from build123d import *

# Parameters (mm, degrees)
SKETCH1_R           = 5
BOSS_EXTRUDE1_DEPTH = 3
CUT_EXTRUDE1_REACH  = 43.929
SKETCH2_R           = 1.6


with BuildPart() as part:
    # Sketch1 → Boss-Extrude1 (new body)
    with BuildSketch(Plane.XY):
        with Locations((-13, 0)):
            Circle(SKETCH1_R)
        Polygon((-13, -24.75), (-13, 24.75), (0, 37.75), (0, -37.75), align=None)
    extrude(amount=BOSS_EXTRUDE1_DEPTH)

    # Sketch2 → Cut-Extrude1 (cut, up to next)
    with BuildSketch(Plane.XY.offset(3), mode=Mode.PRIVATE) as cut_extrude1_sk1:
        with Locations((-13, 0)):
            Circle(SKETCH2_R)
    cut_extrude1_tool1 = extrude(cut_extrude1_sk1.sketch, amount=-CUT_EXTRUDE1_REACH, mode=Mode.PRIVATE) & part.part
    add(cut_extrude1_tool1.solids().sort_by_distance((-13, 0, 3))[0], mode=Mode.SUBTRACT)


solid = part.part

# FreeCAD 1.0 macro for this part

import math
import FreeCAD as App
import Part
import Sketcher

V = App.Vector
Q = App.Units.Quantity

doc = App.newDocument("Part")
body = doc.addObject("PartDesign::Body", "Body")

# Sketch on XY plane
sketch1 = doc.addObject("Sketcher::SketchObject", "Sketch")
body.addObject(sketch1)
sketch1.AttachmentSupport = (doc.XY_Plane, [""])
sketch1.MapMode = "FlatFace"
sketch1.addGeometry(Part.LineSegment(V(-13, -25, 0), V(0, -38, 0)), False)
sketch1.addGeometry(Part.LineSegment(V(0, -38, 0), V(0, 38, 0)), False)
sketch1.addGeometry(Part.LineSegment(V(0, 38, 0), V(-13, 25, 0)), False)
sketch1.addGeometry(Part.LineSegment(V(-13, 25, 0), V(-13, 5, 0)), False)
sketch1.addGeometry(Part.ArcOfCircle(Part.Circle(V(-13, 0, 0), V(0, 0, 1), 5), math.radians(90), math.radians(270)), False)
sketch1.addGeometry(Part.LineSegment(V(-13, -5, 0), V(-13, -25, 0)), False)
sketch1.addConstraint(Sketcher.Constraint("Coincident", 0, 2, 1, 1))
sketch1.addConstraint(Sketcher.Constraint("Coincident", 1, 2, 2, 1))
sketch1.addConstraint(Sketcher.Constraint("Coincident", 2, 2, 3, 1))
sketch1.addConstraint(Sketcher.Constraint("Coincident", 3, 2, 4, 1))
sketch1.addConstraint(Sketcher.Constraint("Coincident", 4, 2, 5, 1))
sketch1.addConstraint(Sketcher.Constraint("Coincident", 5, 2, 0, 1))
sketch1.addConstraint(Sketcher.Constraint("Vertical", 1))
sketch1.addConstraint(Sketcher.Constraint("Vertical", 3))
sketch1.addConstraint(Sketcher.Constraint("Vertical", 5))
sketch1.addConstraint(Sketcher.Constraint("Symmetric", 0, 2, 1, 2, -1, 1))
sketch1.addConstraint(Sketcher.Constraint("Symmetric", 3, 2, 4, 2, -1))
sketch1.addConstraint(Sketcher.Constraint("Perpendicular", 0, 2))
sketch1.addConstraint(Sketcher.Constraint("Vertical", 4, 3, 2, 2))
sketch1.addConstraint(Sketcher.Constraint("Equal", 3, 5))
sketch1.addConstraint(Sketcher.Constraint("Radius", 4, Q("5 mm")))
sketch1.addConstraint(Sketcher.Constraint("DistanceY", 1, 1, 1, 2, Q("75.5 mm")))
sketch1.addConstraint(Sketcher.Constraint("DistanceX", 4, 3, -1, 1, Q("13 mm")))
pad1 = doc.addObject("PartDesign::Pad", "Pad")
body.addObject(pad1)
pad1.Profile = sketch1
pad1.Length = 3

# Sketch on XY plane
sketch2 = doc.addObject("Sketcher::SketchObject", "Sketch001")
body.addObject(sketch2)
sketch2.AttachmentSupport = (doc.XY_Plane, [""])
sketch2.MapMode = "FlatFace"
sketch2.AttachmentOffset = App.Placement(V(0, 0, 3), App.Rotation())
sketch2.addGeometry(Part.Circle(V(-13, 0, 0), V(0, 0, 1), 1.6), False)
sketch2.addConstraint(Sketcher.Constraint("PointOnObject", 0, 3, -1))
sketch2.addConstraint(Sketcher.Constraint("Diameter", 0, Q("3.2 mm")))
sketch2.addConstraint(Sketcher.Constraint("DistanceX", 0, 3, -1, 1, Q("13 mm")))
pocket1 = doc.addObject("PartDesign::Pocket", "Pocket")
body.addObject(pocket1)
pocket1.Profile = sketch2
pocket1.Type = "UpToFirst"

doc.recompute()
